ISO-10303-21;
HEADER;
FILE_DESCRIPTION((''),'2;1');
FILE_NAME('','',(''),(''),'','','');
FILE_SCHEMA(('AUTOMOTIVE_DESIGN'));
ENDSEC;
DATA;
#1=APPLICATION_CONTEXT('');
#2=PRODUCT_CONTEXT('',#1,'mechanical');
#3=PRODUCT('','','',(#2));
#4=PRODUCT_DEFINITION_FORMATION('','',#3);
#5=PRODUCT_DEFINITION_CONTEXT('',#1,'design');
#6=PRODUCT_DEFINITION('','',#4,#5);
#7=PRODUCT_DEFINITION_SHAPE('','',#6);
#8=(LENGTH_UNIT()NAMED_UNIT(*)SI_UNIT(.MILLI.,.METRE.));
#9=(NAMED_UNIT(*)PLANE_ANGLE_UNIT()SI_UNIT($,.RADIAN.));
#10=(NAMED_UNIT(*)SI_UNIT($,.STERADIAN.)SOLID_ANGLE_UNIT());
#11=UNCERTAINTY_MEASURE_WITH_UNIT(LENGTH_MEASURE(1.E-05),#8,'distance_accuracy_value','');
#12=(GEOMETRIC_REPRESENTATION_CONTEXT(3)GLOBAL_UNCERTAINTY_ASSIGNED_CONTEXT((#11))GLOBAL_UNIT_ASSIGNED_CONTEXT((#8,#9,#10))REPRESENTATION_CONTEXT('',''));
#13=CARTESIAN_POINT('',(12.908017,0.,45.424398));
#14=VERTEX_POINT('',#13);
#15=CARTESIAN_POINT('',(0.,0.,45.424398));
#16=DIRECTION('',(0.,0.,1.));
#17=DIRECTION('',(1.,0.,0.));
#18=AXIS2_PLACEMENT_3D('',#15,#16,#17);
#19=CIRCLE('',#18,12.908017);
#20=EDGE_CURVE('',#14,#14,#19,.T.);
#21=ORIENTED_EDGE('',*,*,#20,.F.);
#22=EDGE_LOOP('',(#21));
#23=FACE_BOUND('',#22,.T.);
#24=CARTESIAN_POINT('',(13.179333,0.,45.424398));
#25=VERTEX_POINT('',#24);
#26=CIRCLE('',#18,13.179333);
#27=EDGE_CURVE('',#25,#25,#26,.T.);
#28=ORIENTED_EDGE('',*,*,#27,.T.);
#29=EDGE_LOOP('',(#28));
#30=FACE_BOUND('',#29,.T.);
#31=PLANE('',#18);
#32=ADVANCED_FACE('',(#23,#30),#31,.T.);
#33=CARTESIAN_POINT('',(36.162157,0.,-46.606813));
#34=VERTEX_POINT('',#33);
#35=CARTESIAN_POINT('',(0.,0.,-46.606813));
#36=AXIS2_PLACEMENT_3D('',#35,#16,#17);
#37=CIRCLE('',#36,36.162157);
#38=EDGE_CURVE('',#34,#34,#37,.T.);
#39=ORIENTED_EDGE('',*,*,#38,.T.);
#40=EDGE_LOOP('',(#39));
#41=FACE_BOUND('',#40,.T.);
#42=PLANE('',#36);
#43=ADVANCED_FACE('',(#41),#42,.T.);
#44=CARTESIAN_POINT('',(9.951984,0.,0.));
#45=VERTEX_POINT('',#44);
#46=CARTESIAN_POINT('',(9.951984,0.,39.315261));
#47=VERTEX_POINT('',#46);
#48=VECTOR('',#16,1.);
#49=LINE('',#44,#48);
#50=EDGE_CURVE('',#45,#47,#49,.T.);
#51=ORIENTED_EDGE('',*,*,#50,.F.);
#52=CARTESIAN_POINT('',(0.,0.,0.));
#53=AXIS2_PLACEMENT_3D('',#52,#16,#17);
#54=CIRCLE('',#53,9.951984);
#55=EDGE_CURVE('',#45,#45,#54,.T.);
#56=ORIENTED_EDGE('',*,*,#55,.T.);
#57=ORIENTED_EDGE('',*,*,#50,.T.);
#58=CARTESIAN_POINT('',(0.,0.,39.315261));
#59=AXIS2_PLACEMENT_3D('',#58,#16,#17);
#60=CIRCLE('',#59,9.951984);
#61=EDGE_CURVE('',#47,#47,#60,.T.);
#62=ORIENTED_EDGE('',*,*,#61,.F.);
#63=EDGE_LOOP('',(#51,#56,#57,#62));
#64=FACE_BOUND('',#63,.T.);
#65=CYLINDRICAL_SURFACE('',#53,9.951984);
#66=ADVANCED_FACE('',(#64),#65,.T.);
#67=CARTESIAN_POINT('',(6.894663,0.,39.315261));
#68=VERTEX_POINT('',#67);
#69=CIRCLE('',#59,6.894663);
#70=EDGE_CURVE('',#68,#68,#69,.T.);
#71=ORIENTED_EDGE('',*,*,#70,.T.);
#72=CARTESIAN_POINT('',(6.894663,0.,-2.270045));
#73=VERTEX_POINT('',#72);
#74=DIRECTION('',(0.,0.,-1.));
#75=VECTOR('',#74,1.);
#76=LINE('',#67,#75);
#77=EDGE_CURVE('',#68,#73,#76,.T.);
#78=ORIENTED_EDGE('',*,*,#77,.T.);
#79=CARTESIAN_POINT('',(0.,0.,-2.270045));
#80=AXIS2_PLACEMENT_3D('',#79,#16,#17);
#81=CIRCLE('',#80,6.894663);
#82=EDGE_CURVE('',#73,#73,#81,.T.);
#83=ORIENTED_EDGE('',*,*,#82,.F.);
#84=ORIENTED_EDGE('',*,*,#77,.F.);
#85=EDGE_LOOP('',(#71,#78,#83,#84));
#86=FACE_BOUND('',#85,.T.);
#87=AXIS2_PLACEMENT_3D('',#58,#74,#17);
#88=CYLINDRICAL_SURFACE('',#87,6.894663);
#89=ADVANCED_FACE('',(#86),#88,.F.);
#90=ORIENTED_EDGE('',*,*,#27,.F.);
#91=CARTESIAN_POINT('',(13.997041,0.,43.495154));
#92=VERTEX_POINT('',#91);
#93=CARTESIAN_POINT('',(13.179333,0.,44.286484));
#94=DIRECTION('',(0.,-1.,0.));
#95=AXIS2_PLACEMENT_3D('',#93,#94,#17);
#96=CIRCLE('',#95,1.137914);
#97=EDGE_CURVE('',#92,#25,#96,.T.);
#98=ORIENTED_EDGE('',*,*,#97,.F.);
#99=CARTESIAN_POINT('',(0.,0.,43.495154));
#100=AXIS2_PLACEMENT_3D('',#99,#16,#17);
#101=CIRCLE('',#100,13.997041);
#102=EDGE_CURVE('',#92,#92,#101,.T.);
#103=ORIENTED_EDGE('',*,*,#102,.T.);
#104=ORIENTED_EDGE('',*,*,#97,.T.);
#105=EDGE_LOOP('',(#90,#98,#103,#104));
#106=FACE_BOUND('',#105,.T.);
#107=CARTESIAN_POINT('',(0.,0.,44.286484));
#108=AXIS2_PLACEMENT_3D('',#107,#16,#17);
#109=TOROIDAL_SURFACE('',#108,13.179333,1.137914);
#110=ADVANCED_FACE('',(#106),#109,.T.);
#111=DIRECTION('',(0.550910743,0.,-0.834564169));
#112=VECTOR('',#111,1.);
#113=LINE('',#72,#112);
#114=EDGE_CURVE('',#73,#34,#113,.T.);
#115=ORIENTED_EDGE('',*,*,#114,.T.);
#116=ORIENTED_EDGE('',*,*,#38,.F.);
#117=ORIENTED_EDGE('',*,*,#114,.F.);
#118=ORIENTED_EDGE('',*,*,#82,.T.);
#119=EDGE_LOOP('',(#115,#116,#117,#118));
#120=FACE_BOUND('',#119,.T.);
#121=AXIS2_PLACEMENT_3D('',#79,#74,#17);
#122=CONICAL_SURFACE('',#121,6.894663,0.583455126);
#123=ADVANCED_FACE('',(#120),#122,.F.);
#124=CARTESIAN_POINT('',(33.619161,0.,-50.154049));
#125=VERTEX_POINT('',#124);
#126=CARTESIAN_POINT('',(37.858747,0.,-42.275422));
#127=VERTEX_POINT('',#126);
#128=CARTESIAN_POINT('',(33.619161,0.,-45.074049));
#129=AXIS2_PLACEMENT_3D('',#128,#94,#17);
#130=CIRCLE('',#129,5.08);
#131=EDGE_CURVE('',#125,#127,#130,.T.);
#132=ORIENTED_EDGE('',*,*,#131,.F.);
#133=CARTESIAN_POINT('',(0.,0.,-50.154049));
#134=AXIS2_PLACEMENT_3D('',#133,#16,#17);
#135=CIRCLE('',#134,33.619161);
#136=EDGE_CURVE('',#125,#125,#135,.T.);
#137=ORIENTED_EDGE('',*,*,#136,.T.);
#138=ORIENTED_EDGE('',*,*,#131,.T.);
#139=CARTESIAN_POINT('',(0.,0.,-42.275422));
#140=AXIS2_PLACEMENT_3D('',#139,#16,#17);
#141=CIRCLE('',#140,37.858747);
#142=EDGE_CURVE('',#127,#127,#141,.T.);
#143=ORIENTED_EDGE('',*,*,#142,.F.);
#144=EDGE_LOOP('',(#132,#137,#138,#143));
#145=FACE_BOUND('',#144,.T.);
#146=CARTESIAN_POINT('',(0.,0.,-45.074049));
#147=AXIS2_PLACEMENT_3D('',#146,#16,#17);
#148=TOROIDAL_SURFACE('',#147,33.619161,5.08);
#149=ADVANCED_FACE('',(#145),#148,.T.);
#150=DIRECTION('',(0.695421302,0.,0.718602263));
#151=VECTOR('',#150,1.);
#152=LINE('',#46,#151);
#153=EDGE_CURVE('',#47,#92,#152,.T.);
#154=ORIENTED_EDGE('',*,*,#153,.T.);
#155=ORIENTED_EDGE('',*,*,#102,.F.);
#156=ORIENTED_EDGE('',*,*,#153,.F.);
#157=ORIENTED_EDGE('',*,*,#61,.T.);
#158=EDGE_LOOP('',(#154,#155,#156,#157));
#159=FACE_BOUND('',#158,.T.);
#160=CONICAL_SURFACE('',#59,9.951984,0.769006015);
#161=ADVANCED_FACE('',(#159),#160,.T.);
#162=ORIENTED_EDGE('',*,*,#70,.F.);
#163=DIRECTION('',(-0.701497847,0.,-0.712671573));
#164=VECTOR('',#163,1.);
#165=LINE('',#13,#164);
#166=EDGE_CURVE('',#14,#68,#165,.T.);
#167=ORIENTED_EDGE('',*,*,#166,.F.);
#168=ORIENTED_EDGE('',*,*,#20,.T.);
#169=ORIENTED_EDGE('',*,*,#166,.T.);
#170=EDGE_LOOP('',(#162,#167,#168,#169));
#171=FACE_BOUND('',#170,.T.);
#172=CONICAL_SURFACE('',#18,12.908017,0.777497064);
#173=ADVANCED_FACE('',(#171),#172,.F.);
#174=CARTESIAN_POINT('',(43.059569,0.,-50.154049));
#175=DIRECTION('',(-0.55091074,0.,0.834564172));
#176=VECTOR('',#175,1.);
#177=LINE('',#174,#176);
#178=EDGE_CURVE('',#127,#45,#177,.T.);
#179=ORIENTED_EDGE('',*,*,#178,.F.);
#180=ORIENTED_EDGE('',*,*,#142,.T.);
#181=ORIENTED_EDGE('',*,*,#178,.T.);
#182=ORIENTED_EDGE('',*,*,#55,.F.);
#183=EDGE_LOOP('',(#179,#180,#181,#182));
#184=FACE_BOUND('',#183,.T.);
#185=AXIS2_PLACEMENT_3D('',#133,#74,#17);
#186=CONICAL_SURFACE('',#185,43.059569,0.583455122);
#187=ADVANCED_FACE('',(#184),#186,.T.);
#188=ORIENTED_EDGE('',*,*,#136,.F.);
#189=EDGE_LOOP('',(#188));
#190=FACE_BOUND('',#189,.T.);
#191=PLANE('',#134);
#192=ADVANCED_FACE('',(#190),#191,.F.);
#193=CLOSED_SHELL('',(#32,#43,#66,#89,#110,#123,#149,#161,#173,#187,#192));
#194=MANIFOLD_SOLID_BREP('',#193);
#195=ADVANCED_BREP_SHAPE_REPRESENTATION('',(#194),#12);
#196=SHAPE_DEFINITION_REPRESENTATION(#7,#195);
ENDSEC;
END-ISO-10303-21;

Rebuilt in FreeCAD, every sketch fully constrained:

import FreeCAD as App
import Part
import Sketcher

V = App.Vector
Q = App.Units.Quantity


def edges_at(feature, points):
    """Names of the edges that pass closest to the given points."""
    edges = feature.Shape.Edges
    near = lambda p: min(range(len(edges)), key=lambda i: edges[i].distToShape(Part.Vertex(*p))[0])
    return sorted({f"Edge{near(p) + 1}" for p in points})

doc = App.newDocument("Part")
body = doc.addObject("PartDesign::Body", "Body")

sketch1 = body.newObject("Sketcher::SketchObject", "Sketch")
sketch1.AttachmentSupport = (doc.getObject("XZ_Plane"), [""])
sketch1.MapMode = "FlatFace"
sketch1.addGeometry(Part.LineSegment(V(15.86405, 45.424398, 0), V(12.908017, 45.424398, 0)), False)
sketch1.addGeometry(Part.LineSegment(V(12.908017, 45.424398, 0), V(6.894663, 39.315261, 0)), False)
sketch1.addGeometry(Part.LineSegment(V(6.894663, 39.315261, 0), V(6.894663, -2.270045, 0)), False)
sketch1.addGeometry(Part.LineSegment(V(6.894663, -2.270045, 0), V(36.162157, -46.606813, 0)), False)
sketch1.addGeometry(Part.LineSegment(V(36.162157, -46.606813, 0), V(0, -46.606813, 0)), False)
sketch1.addGeometry(Part.LineSegment(V(0, -46.606813, 0), V(0, -50.154049, 0)), False)
sketch1.addGeometry(Part.LineSegment(V(0, -50.154049, 0), V(43.059569, -50.154049, 0)), False)
sketch1.addGeometry(Part.LineSegment(V(43.059569, -50.154049, 0), V(9.951984, 0, 0)), False)
sketch1.addGeometry(Part.LineSegment(V(9.951984, 0, 0), V(9.951984, 39.315261, 0)), False)
sketch1.addGeometry(Part.LineSegment(V(9.951984, 39.315261, 0), V(15.86405, 45.424398, 0)), False)
sketch1.addConstraint(Sketcher.Constraint("Coincident", 0, 2, 1, 1))
sketch1.addConstraint(Sketcher.Constraint("Coincident", 1, 2, 2, 1))
sketch1.addConstraint(Sketcher.Constraint("Coincident", 2, 2, 3, 1))
sketch1.addConstraint(Sketcher.Constraint("Coincident", 3, 2, 4, 1))
sketch1.addConstraint(Sketcher.Constraint("Coincident", 4, 2, 5, 1))
sketch1.addConstraint(Sketcher.Constraint("Coincident", 5, 2, 6, 1))
sketch1.addConstraint(Sketcher.Constraint("Coincident", 6, 2, 7, 1))
sketch1.addConstraint(Sketcher.Constraint("Coincident", 7, 2, 8, 1))
sketch1.addConstraint(Sketcher.Constraint("Coincident", 8, 2, 9, 1))
sketch1.addConstraint(Sketcher.Constraint("Coincident", 9, 2, 0, 1))
sketch1.addConstraint(Sketcher.Constraint("Horizontal", 0))
sketch1.addConstraint(Sketcher.Constraint("Vertical", 2))
sketch1.addConstraint(Sketcher.Constraint("Horizontal", 4))
sketch1.addConstraint(Sketcher.Constraint("Vertical", 5))
sketch1.addConstraint(Sketcher.Constraint("Horizontal", 6))
sketch1.addConstraint(Sketcher.Constraint("Vertical", 8))
sketch1.addConstraint(Sketcher.Constraint("PointOnObject", 4, 2, -2))
sketch1.addConstraint(Sketcher.Constraint("PointOnObject", 7, 2, -1))
sketch1.addConstraint(Sketcher.Constraint("Parallel", 3, 7))
sketch1.addConstraint(Sketcher.Constraint("Horizontal", 1, 2, 8, 2))
sketch1.addConstraint(Sketcher.Constraint("DistanceX", 6, 1, 6, 2, 43.059569))
sketch1.addConstraint(Sketcher.Constraint("DistanceY", 8, 1, 8, 2, 39.315261))
sketch1.addConstraint(Sketcher.Constraint("DistanceX", 0, 2, 0, 1, 2.956033))
sketch1.addConstraint(Sketcher.Constraint("DistanceX", 4, 2, 4, 1, 36.162157))
sketch1.addConstraint(Sketcher.Constraint("DistanceY", 2, 2, 2, 1, 41.585306))
sketch1.addConstraint(Sketcher.Constraint("DistanceY", 5, 2, 5, 1, 3.547236))
sketch1.addConstraint(Sketcher.Constraint("DistanceY", 5, 2, -1, 1, 50.154049))
sketch1.addConstraint(Sketcher.Constraint("DistanceX", -1, 1, 9, 2, 15.86405))
sketch1.addConstraint(Sketcher.Constraint("DistanceY", 3, 2, 0, 2, 92.031211))
sketch1.addConstraint(Sketcher.Constraint("DistanceX", 2, 2, 7, 2, 3.057321))
revolution = body.newObject("PartDesign::Revolution", "Revolution")
revolution.Profile = sketch1
revolution.ReferenceAxis = (sketch1, ["V_Axis"])
revolution.Angle = 360
doc.recompute()

fillet = body.newObject("PartDesign::Fillet", "Fillet")
fillet.Base = (revolution, edges_at(revolution, [(-43.06, 0, -50.154)]))
fillet.Radius = Q("0.2 in")
doc.recompute()

fillet2 = body.newObject("PartDesign::Fillet", "Fillet001")
fillet2.Base = (fillet, edges_at(fillet, [(-15.864, 0, 45.424)]))
fillet2.Radius = 1.137914

doc.recompute()
